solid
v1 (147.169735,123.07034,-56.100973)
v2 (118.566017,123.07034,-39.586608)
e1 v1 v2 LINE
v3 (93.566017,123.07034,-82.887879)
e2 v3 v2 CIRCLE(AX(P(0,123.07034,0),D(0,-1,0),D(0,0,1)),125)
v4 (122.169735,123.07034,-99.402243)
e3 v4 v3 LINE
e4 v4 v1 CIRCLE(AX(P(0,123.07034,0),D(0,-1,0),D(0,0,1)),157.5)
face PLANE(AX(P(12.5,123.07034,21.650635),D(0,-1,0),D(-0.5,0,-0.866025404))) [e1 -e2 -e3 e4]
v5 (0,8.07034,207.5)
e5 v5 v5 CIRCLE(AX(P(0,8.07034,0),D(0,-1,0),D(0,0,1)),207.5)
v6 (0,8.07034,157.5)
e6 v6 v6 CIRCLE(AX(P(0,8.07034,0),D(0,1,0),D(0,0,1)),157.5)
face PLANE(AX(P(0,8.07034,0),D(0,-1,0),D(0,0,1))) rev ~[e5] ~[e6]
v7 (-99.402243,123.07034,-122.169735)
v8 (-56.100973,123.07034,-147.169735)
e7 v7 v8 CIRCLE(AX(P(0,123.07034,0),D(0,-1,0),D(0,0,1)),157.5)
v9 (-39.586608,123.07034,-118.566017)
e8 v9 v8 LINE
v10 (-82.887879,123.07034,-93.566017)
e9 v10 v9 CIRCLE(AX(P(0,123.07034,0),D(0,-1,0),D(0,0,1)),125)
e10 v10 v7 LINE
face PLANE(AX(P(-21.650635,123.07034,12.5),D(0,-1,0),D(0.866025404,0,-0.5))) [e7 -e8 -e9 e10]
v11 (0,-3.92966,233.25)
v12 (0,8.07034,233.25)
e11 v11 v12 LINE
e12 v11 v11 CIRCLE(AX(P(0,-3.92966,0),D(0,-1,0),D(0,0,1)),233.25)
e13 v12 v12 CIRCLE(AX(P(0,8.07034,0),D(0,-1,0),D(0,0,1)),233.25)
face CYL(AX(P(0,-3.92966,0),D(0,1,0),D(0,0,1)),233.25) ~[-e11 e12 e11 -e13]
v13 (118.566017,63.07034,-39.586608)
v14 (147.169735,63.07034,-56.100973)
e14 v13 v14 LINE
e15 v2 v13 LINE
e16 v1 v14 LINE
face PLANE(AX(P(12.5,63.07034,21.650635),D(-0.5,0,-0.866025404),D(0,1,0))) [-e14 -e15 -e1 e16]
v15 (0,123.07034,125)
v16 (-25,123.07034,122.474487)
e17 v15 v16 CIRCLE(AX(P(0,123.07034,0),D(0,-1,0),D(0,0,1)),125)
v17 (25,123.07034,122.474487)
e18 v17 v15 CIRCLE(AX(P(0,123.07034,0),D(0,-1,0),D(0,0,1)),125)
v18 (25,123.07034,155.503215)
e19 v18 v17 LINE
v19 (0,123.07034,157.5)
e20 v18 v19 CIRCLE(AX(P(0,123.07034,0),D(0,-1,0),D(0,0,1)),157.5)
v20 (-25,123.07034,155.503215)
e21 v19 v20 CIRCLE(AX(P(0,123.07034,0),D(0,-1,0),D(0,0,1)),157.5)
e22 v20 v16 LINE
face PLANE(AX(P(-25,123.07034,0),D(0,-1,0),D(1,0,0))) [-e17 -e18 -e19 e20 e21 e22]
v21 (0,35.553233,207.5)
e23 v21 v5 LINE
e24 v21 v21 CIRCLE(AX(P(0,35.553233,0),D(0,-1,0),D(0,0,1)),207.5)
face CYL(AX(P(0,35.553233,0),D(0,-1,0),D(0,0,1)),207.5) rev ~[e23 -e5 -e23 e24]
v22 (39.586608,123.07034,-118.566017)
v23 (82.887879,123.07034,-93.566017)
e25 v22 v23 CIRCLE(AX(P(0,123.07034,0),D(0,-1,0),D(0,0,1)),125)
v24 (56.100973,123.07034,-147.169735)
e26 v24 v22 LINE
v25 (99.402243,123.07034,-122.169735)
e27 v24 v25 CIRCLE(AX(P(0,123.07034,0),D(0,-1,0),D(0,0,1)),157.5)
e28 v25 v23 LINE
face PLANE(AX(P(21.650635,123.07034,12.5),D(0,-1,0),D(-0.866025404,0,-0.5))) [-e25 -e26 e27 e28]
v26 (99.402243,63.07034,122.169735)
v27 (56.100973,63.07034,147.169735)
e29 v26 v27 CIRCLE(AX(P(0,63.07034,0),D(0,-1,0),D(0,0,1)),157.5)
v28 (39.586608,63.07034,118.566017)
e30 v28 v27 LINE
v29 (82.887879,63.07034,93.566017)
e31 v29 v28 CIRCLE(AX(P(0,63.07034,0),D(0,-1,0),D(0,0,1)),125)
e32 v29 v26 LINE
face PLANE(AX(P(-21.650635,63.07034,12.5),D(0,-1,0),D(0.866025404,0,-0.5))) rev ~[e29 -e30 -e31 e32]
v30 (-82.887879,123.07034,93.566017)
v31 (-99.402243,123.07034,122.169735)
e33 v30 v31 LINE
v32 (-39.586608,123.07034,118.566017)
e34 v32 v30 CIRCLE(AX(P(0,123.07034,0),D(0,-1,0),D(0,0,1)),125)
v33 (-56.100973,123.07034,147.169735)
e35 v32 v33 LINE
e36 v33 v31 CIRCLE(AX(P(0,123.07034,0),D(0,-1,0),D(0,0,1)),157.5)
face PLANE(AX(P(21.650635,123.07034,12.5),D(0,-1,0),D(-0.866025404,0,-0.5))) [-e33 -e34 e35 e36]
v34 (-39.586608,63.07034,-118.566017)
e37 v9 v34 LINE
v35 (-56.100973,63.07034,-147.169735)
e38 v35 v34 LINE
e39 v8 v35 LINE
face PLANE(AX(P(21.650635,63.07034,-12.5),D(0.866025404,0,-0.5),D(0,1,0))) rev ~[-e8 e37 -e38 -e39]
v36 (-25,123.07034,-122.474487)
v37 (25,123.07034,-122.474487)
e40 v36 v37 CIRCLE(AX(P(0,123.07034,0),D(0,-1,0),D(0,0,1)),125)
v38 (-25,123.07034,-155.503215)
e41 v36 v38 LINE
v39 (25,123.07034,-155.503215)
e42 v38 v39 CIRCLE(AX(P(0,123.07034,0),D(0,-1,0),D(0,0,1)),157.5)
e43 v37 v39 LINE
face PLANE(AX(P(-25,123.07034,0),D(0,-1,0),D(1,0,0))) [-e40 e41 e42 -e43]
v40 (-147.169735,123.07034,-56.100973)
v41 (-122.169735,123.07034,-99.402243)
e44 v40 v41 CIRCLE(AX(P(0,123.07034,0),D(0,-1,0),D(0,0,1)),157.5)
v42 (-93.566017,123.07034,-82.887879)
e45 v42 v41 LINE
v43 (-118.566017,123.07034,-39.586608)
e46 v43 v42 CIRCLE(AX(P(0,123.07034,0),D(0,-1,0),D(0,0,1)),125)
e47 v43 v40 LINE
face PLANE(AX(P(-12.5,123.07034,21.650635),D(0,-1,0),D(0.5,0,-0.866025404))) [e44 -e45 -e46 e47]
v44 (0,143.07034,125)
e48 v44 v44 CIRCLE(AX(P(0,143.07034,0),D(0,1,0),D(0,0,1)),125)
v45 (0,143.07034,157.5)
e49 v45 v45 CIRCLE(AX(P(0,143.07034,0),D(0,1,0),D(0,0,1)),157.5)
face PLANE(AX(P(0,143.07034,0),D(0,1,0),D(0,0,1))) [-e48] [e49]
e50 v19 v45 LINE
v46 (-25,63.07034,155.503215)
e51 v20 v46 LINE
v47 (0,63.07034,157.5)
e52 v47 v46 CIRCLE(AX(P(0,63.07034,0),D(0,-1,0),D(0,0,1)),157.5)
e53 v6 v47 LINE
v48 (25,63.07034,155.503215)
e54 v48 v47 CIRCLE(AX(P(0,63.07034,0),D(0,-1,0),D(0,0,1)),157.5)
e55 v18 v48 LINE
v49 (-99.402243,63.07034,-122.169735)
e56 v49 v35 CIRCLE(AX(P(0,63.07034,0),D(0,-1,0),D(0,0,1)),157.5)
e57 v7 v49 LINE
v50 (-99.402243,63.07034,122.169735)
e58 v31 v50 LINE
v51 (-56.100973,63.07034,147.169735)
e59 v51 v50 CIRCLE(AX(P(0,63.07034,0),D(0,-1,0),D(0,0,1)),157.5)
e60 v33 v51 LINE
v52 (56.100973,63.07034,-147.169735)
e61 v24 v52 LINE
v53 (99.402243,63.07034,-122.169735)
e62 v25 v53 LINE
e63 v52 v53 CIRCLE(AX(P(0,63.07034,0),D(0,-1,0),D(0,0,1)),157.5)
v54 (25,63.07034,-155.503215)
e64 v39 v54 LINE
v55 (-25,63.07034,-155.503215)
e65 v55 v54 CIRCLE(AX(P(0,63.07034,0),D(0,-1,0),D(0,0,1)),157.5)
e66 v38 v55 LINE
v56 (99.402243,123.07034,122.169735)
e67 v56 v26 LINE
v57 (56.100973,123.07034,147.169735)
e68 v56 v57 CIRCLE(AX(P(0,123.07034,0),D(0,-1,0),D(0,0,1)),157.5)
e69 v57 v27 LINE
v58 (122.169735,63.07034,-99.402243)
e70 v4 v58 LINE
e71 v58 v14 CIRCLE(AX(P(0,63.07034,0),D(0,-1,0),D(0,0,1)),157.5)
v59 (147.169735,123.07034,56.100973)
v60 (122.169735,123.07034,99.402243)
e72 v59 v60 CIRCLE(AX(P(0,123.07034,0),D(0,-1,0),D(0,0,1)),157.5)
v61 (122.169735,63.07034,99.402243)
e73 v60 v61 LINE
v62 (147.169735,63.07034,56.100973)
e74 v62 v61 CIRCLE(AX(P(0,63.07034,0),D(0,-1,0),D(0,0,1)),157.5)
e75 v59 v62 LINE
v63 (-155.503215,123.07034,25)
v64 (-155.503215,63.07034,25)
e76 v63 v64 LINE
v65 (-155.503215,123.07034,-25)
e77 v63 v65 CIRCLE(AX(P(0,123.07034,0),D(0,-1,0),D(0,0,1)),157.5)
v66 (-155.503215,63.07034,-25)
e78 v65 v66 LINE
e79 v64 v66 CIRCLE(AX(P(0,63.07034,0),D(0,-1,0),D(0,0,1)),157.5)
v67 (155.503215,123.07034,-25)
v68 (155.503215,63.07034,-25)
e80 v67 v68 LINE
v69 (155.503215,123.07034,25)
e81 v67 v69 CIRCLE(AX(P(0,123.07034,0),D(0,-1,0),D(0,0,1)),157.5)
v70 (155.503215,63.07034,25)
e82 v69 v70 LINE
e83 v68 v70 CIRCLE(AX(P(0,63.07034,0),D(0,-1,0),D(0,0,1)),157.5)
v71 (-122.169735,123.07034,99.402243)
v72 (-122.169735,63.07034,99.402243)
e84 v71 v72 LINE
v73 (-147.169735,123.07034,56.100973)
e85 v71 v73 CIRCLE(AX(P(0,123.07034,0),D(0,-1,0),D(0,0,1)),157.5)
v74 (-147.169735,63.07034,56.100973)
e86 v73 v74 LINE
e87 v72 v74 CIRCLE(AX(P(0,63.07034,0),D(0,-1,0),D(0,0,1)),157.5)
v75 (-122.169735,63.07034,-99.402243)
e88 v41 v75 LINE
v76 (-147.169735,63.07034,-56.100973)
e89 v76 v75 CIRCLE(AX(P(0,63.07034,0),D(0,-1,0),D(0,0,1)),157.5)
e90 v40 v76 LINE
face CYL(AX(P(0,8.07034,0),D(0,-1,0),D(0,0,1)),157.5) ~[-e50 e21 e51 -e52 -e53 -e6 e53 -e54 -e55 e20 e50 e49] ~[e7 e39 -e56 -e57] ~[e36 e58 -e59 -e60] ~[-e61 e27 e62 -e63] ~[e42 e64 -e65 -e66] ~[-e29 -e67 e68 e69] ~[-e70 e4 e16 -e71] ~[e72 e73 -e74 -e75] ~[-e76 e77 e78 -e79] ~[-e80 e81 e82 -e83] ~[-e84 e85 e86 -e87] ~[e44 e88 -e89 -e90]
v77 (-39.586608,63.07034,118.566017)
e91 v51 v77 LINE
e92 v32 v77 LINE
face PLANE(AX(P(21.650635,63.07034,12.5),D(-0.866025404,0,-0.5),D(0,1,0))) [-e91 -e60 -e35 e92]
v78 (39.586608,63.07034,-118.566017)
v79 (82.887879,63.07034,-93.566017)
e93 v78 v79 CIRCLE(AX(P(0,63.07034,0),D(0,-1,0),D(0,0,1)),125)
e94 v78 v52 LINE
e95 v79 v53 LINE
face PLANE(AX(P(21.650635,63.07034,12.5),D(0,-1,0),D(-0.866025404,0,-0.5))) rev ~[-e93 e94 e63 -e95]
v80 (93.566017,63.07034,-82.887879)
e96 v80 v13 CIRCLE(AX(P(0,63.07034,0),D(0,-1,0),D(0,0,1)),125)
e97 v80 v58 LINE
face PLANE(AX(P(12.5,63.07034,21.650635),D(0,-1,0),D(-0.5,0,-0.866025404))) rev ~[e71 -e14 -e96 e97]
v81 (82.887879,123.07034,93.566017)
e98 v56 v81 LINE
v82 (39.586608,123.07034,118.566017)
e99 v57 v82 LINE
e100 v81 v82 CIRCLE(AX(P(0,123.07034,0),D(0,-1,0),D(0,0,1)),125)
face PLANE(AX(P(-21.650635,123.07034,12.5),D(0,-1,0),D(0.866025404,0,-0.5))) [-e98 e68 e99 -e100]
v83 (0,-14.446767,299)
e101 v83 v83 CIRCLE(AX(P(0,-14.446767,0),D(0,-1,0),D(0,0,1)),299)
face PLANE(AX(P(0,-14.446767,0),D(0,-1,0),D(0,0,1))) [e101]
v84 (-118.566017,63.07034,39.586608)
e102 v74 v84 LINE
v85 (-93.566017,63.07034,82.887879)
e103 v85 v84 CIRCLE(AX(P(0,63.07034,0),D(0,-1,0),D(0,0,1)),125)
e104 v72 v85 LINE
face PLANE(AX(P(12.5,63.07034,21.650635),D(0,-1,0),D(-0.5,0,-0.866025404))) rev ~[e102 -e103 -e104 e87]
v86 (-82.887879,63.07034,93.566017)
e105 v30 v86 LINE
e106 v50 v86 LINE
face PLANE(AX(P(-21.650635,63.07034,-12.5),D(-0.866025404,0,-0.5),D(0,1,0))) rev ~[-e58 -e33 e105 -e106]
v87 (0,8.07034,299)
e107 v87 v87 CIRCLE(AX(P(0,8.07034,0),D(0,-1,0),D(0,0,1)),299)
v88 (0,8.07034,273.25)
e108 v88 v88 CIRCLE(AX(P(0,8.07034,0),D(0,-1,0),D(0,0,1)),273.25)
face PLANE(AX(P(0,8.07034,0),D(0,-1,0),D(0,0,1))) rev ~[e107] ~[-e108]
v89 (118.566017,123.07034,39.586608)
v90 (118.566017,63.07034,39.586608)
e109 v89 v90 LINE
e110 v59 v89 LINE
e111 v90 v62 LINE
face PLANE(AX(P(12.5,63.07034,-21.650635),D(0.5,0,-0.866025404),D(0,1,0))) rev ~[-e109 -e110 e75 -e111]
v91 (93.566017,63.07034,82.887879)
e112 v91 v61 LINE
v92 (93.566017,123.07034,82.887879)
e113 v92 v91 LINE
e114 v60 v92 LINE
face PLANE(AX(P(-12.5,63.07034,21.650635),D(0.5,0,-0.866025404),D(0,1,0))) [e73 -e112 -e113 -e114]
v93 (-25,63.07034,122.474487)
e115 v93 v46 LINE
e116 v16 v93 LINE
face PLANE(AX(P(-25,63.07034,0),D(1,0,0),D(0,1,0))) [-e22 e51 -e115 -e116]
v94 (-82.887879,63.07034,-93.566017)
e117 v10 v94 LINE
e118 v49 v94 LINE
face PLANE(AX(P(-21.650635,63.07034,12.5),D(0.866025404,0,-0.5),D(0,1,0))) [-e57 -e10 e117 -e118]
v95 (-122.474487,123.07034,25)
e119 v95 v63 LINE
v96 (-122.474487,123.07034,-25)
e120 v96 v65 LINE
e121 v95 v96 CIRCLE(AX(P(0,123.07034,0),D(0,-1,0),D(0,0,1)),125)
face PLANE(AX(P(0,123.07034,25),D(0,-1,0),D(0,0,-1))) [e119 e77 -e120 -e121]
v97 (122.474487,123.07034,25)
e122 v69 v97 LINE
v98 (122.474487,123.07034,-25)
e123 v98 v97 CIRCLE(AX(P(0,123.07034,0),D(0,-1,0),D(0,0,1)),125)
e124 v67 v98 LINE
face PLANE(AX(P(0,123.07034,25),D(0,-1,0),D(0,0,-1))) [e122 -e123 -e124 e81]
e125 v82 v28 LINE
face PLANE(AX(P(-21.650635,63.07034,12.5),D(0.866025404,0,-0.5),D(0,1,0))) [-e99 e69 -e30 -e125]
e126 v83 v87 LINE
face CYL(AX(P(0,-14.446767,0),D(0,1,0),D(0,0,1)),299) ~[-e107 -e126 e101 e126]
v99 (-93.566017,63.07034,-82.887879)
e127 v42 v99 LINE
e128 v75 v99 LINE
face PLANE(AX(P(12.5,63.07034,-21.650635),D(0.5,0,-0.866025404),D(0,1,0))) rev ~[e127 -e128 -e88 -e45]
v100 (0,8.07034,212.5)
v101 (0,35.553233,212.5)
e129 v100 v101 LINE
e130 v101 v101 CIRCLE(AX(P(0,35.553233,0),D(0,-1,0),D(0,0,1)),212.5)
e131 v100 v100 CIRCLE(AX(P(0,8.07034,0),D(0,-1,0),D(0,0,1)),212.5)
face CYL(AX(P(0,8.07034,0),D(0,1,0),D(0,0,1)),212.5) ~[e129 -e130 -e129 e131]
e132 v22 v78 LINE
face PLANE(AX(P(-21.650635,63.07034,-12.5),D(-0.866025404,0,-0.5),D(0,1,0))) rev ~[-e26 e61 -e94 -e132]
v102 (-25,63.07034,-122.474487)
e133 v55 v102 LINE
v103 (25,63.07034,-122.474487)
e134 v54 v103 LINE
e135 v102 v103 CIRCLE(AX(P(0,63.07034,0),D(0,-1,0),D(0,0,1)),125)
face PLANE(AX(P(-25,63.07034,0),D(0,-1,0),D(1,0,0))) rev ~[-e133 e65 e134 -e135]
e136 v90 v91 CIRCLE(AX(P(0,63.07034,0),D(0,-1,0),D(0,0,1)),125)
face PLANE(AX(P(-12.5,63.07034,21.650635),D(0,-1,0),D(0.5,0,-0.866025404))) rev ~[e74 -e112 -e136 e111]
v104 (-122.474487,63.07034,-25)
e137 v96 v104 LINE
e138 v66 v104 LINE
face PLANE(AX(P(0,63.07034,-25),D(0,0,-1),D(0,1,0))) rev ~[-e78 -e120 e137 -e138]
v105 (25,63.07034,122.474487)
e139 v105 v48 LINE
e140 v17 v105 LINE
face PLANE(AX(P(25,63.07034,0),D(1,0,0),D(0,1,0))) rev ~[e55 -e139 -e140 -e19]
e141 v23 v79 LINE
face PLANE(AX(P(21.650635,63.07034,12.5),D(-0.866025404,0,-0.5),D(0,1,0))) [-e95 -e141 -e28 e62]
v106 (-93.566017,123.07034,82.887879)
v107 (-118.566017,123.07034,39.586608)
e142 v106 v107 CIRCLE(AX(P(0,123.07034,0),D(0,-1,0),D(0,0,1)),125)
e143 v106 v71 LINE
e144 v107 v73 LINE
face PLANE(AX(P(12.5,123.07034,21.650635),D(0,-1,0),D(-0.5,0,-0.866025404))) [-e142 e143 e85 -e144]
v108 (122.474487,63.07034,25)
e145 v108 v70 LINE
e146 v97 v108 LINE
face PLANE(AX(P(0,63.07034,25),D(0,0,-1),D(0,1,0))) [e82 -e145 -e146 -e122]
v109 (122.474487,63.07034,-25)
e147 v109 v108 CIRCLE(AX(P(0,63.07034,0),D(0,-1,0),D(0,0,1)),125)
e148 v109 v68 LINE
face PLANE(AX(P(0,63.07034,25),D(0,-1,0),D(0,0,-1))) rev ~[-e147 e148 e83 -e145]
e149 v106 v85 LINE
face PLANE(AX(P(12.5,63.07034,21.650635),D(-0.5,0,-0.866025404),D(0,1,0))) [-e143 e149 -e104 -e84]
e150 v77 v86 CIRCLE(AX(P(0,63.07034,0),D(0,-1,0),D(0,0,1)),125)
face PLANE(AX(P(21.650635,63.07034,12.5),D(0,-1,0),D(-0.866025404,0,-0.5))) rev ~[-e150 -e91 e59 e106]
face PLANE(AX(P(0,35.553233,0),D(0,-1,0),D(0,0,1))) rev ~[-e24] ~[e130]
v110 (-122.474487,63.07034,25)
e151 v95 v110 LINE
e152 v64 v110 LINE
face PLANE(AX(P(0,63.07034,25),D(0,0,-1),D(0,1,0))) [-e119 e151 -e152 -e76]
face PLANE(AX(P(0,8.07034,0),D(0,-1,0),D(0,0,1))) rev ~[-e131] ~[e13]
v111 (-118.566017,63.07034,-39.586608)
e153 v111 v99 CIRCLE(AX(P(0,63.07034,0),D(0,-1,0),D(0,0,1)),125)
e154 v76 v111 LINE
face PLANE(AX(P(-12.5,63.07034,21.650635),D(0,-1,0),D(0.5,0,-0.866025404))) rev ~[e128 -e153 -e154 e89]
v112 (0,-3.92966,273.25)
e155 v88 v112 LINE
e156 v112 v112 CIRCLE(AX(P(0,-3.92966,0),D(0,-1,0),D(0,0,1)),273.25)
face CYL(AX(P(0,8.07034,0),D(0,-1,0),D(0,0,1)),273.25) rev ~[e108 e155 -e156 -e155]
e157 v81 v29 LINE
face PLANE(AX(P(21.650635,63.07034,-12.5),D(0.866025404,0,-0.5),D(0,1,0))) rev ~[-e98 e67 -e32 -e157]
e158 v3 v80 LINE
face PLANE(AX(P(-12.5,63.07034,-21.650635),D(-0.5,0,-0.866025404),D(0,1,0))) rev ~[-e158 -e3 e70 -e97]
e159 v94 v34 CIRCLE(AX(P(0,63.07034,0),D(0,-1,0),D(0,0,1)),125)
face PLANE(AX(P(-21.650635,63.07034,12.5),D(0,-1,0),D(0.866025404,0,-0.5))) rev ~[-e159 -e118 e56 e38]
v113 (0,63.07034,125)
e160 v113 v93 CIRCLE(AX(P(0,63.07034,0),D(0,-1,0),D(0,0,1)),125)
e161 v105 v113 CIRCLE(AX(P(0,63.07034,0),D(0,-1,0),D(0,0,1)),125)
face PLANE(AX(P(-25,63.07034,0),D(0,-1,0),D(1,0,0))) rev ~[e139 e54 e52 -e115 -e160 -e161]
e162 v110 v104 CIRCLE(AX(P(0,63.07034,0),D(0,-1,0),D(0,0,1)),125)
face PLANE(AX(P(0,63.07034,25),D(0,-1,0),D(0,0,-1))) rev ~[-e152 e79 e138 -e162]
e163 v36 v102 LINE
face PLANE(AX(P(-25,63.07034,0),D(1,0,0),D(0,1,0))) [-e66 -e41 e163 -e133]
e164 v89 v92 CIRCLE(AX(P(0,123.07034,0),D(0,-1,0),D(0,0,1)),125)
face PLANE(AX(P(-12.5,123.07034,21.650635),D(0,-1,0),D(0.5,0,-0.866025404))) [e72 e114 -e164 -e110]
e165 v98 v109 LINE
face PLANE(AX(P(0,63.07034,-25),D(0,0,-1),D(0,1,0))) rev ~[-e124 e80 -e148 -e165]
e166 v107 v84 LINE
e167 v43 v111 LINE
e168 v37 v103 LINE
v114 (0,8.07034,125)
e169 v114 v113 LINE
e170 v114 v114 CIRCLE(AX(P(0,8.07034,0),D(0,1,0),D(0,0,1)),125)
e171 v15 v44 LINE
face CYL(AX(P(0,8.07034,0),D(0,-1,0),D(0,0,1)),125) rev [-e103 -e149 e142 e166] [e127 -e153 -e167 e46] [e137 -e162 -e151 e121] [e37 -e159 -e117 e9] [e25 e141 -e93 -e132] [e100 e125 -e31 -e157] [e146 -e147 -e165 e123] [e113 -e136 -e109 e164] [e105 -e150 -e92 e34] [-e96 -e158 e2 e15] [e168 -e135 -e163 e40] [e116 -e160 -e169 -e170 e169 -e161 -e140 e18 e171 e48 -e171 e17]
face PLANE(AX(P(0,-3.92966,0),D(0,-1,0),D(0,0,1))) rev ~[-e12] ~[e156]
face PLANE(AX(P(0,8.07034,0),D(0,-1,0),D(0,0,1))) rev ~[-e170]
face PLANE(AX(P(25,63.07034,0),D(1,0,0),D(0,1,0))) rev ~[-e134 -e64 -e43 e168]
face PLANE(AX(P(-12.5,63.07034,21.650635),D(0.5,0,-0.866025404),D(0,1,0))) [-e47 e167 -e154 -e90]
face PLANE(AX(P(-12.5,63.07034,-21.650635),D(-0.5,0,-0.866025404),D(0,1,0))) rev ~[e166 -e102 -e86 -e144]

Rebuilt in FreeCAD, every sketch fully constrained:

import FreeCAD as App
import Part
import Sketcher

V = App.Vector


def add_polygon(sketch, points):
    """Adds a closed chain of lines whose ends are joined by coincident constraints."""
    first, n = sketch.GeometryCount, len(points)
    for a, b in zip(points, points[1:] + points[:1]):
        sketch.addGeometry(Part.LineSegment(App.Vector(*a, 0), App.Vector(*b, 0)), False)
    for i in range(n):
        sketch.addConstraint(Sketcher.Constraint("Coincident", first + i, 2, first + (i + 1) % n, 1))

doc = App.newDocument("Part")
body = doc.addObject("PartDesign::Body", "Body")

sketch1 = doc.addObject("Sketcher::SketchObject", "Sketch")
body.addObject(sketch1)
sketch1.AttachmentSupport = (doc.YZ_Plane, [""])
sketch1.MapMode = "FlatFace"
add_polygon(sketch1, [(35.553233, 212.5), (8.07034, 212.5), (8.07034, 233.25), (-3.92966, 233.25), (-3.92966, 273.25), (8.07034, 273.25), (8.07034, 299), (-14.446767, 299), (-14.446767, 0), (8.07034, 0), (8.07034, 207.5), (35.553233, 207.5)])
sketch1.addConstraint([
    Sketcher.Constraint("Horizontal", 0),
    Sketcher.Constraint("Vertical", 1),
    Sketcher.Constraint("Horizontal", 2),
    Sketcher.Constraint("Vertical", 3),
    Sketcher.Constraint("Horizontal", 4),
    Sketcher.Constraint("Vertical", 5),
    Sketcher.Constraint("Horizontal", 6),
    Sketcher.Constraint("Vertical", 7),
    Sketcher.Constraint("Horizontal", 8),
    Sketcher.Constraint("Vertical", 9),
    Sketcher.Constraint("Horizontal", 10),
    Sketcher.Constraint("Vertical", 11),
    Sketcher.Constraint("PointOnObject", 7, 2, -1),
    Sketcher.Constraint("Vertical", 1, 2, 4, 2),
    Sketcher.Constraint("Vertical", 5, 2, 8, 2),
    Sketcher.Constraint("DistanceX", 2, 2, 2, 1, 12.0),
    Sketcher.Constraint("DistanceY", 3, 1, 3, 2, 40.0),
    Sketcher.Constraint("DistanceY", 7, 2, 7, 1, 299.0),
    Sketcher.Constraint("DistanceY", 11, 1, 11, 2, 5.0),
    Sketcher.Constraint("DistanceY", 9, 1, 9, 2, 207.5),
    Sketcher.Constraint("DistanceY", 1, 1, 1, 2, 20.75),
    Sketcher.Constraint("DistanceX", 0, 2, 0, 1, 27.482893),
    Sketcher.Constraint("DistanceX", 6, 2, 6, 1, 22.517107),
    Sketcher.Constraint("DistanceX", -1, 1, 0, 2, 8.07034),
])
revolution = doc.addObject("PartDesign::Revolution", "Revolution")
body.addObject(revolution)
revolution.Profile = sketch1
revolution.ReferenceAxis = (sketch1, ["H_Axis"])
revolution.Angle = 360

sketch2 = doc.addObject("Sketcher::SketchObject", "Sketch001")
body.addObject(sketch2)
sketch2.AttachmentSupport = (doc.XZ_Plane, [""])
sketch2.MapMode = "FlatFace"
sketch2.AttachmentOffset = App.Placement(V(0, 0, -8.07034), App.Rotation())
sketch2.addGeometry([
    Part.Circle(V(0, 0, 0), V(0, 0, 1), 157.5),
    Part.Circle(V(0, 0, 0), V(0, 0, 1), 125),
], False)
sketch2.addConstraint([
    Sketcher.Constraint("Coincident", 0, 3, -1, 1),
    Sketcher.Constraint("Coincident", 1, 3, -1, 1),
    Sketcher.Constraint("Diameter", 0, 315.0),
    Sketcher.Constraint("Diameter", 1, 250.0),
])
pad1 = doc.addObject("PartDesign::Pad", "Pad")
body.addObject(pad1)
pad1.Profile = sketch2
pad1.Length = 135
pad1.Reversed = True

sketch3 = doc.addObject("Sketcher::SketchObject", "Sketch002")
body.addObject(sketch3)
sketch3.AttachmentSupport = (doc.XY_Plane, [""])
sketch3.MapMode = "FlatFace"
add_polygon(sketch3, [(-25, 123.07034), (-25, 63.07034), (25, 63.07034), (25, 123.07034)])
sketch3.addConstraint([
    Sketcher.Constraint("Vertical", 0),
    Sketcher.Constraint("Horizontal", 1),
    Sketcher.Constraint("Vertical", 2),
    Sketcher.Constraint("Horizontal", 3),
    Sketcher.Constraint("DistanceX", 1, 1, 1, 2, 50.0),
    Sketcher.Constraint("DistanceY", 0, 2, 0, 1, 60.0),
    Sketcher.Constraint("DistanceX", 0, 2, -1, 1, 25.0),
    Sketcher.Constraint("DistanceY", -1, 1, 0, 2, 63.07034),
])
pocket1 = doc.addObject("PartDesign::Pocket", "Pocket")
body.addObject(pocket1)
pocket1.Profile = sketch3
pocket1.Length = 894.795883
pocket1.Midplane = True
doc.recompute()

polarpattern = doc.addObject("PartDesign::PolarPattern", "PolarPattern")
body.addObject(polarpattern)
polarpattern.Originals = [pocket1]
polarpattern.Axis = (doc.Y_Axis, [""])
polarpattern.Angle = 360
polarpattern.Occurrences = 12
body.Tip = polarpattern

doc.recompute()
